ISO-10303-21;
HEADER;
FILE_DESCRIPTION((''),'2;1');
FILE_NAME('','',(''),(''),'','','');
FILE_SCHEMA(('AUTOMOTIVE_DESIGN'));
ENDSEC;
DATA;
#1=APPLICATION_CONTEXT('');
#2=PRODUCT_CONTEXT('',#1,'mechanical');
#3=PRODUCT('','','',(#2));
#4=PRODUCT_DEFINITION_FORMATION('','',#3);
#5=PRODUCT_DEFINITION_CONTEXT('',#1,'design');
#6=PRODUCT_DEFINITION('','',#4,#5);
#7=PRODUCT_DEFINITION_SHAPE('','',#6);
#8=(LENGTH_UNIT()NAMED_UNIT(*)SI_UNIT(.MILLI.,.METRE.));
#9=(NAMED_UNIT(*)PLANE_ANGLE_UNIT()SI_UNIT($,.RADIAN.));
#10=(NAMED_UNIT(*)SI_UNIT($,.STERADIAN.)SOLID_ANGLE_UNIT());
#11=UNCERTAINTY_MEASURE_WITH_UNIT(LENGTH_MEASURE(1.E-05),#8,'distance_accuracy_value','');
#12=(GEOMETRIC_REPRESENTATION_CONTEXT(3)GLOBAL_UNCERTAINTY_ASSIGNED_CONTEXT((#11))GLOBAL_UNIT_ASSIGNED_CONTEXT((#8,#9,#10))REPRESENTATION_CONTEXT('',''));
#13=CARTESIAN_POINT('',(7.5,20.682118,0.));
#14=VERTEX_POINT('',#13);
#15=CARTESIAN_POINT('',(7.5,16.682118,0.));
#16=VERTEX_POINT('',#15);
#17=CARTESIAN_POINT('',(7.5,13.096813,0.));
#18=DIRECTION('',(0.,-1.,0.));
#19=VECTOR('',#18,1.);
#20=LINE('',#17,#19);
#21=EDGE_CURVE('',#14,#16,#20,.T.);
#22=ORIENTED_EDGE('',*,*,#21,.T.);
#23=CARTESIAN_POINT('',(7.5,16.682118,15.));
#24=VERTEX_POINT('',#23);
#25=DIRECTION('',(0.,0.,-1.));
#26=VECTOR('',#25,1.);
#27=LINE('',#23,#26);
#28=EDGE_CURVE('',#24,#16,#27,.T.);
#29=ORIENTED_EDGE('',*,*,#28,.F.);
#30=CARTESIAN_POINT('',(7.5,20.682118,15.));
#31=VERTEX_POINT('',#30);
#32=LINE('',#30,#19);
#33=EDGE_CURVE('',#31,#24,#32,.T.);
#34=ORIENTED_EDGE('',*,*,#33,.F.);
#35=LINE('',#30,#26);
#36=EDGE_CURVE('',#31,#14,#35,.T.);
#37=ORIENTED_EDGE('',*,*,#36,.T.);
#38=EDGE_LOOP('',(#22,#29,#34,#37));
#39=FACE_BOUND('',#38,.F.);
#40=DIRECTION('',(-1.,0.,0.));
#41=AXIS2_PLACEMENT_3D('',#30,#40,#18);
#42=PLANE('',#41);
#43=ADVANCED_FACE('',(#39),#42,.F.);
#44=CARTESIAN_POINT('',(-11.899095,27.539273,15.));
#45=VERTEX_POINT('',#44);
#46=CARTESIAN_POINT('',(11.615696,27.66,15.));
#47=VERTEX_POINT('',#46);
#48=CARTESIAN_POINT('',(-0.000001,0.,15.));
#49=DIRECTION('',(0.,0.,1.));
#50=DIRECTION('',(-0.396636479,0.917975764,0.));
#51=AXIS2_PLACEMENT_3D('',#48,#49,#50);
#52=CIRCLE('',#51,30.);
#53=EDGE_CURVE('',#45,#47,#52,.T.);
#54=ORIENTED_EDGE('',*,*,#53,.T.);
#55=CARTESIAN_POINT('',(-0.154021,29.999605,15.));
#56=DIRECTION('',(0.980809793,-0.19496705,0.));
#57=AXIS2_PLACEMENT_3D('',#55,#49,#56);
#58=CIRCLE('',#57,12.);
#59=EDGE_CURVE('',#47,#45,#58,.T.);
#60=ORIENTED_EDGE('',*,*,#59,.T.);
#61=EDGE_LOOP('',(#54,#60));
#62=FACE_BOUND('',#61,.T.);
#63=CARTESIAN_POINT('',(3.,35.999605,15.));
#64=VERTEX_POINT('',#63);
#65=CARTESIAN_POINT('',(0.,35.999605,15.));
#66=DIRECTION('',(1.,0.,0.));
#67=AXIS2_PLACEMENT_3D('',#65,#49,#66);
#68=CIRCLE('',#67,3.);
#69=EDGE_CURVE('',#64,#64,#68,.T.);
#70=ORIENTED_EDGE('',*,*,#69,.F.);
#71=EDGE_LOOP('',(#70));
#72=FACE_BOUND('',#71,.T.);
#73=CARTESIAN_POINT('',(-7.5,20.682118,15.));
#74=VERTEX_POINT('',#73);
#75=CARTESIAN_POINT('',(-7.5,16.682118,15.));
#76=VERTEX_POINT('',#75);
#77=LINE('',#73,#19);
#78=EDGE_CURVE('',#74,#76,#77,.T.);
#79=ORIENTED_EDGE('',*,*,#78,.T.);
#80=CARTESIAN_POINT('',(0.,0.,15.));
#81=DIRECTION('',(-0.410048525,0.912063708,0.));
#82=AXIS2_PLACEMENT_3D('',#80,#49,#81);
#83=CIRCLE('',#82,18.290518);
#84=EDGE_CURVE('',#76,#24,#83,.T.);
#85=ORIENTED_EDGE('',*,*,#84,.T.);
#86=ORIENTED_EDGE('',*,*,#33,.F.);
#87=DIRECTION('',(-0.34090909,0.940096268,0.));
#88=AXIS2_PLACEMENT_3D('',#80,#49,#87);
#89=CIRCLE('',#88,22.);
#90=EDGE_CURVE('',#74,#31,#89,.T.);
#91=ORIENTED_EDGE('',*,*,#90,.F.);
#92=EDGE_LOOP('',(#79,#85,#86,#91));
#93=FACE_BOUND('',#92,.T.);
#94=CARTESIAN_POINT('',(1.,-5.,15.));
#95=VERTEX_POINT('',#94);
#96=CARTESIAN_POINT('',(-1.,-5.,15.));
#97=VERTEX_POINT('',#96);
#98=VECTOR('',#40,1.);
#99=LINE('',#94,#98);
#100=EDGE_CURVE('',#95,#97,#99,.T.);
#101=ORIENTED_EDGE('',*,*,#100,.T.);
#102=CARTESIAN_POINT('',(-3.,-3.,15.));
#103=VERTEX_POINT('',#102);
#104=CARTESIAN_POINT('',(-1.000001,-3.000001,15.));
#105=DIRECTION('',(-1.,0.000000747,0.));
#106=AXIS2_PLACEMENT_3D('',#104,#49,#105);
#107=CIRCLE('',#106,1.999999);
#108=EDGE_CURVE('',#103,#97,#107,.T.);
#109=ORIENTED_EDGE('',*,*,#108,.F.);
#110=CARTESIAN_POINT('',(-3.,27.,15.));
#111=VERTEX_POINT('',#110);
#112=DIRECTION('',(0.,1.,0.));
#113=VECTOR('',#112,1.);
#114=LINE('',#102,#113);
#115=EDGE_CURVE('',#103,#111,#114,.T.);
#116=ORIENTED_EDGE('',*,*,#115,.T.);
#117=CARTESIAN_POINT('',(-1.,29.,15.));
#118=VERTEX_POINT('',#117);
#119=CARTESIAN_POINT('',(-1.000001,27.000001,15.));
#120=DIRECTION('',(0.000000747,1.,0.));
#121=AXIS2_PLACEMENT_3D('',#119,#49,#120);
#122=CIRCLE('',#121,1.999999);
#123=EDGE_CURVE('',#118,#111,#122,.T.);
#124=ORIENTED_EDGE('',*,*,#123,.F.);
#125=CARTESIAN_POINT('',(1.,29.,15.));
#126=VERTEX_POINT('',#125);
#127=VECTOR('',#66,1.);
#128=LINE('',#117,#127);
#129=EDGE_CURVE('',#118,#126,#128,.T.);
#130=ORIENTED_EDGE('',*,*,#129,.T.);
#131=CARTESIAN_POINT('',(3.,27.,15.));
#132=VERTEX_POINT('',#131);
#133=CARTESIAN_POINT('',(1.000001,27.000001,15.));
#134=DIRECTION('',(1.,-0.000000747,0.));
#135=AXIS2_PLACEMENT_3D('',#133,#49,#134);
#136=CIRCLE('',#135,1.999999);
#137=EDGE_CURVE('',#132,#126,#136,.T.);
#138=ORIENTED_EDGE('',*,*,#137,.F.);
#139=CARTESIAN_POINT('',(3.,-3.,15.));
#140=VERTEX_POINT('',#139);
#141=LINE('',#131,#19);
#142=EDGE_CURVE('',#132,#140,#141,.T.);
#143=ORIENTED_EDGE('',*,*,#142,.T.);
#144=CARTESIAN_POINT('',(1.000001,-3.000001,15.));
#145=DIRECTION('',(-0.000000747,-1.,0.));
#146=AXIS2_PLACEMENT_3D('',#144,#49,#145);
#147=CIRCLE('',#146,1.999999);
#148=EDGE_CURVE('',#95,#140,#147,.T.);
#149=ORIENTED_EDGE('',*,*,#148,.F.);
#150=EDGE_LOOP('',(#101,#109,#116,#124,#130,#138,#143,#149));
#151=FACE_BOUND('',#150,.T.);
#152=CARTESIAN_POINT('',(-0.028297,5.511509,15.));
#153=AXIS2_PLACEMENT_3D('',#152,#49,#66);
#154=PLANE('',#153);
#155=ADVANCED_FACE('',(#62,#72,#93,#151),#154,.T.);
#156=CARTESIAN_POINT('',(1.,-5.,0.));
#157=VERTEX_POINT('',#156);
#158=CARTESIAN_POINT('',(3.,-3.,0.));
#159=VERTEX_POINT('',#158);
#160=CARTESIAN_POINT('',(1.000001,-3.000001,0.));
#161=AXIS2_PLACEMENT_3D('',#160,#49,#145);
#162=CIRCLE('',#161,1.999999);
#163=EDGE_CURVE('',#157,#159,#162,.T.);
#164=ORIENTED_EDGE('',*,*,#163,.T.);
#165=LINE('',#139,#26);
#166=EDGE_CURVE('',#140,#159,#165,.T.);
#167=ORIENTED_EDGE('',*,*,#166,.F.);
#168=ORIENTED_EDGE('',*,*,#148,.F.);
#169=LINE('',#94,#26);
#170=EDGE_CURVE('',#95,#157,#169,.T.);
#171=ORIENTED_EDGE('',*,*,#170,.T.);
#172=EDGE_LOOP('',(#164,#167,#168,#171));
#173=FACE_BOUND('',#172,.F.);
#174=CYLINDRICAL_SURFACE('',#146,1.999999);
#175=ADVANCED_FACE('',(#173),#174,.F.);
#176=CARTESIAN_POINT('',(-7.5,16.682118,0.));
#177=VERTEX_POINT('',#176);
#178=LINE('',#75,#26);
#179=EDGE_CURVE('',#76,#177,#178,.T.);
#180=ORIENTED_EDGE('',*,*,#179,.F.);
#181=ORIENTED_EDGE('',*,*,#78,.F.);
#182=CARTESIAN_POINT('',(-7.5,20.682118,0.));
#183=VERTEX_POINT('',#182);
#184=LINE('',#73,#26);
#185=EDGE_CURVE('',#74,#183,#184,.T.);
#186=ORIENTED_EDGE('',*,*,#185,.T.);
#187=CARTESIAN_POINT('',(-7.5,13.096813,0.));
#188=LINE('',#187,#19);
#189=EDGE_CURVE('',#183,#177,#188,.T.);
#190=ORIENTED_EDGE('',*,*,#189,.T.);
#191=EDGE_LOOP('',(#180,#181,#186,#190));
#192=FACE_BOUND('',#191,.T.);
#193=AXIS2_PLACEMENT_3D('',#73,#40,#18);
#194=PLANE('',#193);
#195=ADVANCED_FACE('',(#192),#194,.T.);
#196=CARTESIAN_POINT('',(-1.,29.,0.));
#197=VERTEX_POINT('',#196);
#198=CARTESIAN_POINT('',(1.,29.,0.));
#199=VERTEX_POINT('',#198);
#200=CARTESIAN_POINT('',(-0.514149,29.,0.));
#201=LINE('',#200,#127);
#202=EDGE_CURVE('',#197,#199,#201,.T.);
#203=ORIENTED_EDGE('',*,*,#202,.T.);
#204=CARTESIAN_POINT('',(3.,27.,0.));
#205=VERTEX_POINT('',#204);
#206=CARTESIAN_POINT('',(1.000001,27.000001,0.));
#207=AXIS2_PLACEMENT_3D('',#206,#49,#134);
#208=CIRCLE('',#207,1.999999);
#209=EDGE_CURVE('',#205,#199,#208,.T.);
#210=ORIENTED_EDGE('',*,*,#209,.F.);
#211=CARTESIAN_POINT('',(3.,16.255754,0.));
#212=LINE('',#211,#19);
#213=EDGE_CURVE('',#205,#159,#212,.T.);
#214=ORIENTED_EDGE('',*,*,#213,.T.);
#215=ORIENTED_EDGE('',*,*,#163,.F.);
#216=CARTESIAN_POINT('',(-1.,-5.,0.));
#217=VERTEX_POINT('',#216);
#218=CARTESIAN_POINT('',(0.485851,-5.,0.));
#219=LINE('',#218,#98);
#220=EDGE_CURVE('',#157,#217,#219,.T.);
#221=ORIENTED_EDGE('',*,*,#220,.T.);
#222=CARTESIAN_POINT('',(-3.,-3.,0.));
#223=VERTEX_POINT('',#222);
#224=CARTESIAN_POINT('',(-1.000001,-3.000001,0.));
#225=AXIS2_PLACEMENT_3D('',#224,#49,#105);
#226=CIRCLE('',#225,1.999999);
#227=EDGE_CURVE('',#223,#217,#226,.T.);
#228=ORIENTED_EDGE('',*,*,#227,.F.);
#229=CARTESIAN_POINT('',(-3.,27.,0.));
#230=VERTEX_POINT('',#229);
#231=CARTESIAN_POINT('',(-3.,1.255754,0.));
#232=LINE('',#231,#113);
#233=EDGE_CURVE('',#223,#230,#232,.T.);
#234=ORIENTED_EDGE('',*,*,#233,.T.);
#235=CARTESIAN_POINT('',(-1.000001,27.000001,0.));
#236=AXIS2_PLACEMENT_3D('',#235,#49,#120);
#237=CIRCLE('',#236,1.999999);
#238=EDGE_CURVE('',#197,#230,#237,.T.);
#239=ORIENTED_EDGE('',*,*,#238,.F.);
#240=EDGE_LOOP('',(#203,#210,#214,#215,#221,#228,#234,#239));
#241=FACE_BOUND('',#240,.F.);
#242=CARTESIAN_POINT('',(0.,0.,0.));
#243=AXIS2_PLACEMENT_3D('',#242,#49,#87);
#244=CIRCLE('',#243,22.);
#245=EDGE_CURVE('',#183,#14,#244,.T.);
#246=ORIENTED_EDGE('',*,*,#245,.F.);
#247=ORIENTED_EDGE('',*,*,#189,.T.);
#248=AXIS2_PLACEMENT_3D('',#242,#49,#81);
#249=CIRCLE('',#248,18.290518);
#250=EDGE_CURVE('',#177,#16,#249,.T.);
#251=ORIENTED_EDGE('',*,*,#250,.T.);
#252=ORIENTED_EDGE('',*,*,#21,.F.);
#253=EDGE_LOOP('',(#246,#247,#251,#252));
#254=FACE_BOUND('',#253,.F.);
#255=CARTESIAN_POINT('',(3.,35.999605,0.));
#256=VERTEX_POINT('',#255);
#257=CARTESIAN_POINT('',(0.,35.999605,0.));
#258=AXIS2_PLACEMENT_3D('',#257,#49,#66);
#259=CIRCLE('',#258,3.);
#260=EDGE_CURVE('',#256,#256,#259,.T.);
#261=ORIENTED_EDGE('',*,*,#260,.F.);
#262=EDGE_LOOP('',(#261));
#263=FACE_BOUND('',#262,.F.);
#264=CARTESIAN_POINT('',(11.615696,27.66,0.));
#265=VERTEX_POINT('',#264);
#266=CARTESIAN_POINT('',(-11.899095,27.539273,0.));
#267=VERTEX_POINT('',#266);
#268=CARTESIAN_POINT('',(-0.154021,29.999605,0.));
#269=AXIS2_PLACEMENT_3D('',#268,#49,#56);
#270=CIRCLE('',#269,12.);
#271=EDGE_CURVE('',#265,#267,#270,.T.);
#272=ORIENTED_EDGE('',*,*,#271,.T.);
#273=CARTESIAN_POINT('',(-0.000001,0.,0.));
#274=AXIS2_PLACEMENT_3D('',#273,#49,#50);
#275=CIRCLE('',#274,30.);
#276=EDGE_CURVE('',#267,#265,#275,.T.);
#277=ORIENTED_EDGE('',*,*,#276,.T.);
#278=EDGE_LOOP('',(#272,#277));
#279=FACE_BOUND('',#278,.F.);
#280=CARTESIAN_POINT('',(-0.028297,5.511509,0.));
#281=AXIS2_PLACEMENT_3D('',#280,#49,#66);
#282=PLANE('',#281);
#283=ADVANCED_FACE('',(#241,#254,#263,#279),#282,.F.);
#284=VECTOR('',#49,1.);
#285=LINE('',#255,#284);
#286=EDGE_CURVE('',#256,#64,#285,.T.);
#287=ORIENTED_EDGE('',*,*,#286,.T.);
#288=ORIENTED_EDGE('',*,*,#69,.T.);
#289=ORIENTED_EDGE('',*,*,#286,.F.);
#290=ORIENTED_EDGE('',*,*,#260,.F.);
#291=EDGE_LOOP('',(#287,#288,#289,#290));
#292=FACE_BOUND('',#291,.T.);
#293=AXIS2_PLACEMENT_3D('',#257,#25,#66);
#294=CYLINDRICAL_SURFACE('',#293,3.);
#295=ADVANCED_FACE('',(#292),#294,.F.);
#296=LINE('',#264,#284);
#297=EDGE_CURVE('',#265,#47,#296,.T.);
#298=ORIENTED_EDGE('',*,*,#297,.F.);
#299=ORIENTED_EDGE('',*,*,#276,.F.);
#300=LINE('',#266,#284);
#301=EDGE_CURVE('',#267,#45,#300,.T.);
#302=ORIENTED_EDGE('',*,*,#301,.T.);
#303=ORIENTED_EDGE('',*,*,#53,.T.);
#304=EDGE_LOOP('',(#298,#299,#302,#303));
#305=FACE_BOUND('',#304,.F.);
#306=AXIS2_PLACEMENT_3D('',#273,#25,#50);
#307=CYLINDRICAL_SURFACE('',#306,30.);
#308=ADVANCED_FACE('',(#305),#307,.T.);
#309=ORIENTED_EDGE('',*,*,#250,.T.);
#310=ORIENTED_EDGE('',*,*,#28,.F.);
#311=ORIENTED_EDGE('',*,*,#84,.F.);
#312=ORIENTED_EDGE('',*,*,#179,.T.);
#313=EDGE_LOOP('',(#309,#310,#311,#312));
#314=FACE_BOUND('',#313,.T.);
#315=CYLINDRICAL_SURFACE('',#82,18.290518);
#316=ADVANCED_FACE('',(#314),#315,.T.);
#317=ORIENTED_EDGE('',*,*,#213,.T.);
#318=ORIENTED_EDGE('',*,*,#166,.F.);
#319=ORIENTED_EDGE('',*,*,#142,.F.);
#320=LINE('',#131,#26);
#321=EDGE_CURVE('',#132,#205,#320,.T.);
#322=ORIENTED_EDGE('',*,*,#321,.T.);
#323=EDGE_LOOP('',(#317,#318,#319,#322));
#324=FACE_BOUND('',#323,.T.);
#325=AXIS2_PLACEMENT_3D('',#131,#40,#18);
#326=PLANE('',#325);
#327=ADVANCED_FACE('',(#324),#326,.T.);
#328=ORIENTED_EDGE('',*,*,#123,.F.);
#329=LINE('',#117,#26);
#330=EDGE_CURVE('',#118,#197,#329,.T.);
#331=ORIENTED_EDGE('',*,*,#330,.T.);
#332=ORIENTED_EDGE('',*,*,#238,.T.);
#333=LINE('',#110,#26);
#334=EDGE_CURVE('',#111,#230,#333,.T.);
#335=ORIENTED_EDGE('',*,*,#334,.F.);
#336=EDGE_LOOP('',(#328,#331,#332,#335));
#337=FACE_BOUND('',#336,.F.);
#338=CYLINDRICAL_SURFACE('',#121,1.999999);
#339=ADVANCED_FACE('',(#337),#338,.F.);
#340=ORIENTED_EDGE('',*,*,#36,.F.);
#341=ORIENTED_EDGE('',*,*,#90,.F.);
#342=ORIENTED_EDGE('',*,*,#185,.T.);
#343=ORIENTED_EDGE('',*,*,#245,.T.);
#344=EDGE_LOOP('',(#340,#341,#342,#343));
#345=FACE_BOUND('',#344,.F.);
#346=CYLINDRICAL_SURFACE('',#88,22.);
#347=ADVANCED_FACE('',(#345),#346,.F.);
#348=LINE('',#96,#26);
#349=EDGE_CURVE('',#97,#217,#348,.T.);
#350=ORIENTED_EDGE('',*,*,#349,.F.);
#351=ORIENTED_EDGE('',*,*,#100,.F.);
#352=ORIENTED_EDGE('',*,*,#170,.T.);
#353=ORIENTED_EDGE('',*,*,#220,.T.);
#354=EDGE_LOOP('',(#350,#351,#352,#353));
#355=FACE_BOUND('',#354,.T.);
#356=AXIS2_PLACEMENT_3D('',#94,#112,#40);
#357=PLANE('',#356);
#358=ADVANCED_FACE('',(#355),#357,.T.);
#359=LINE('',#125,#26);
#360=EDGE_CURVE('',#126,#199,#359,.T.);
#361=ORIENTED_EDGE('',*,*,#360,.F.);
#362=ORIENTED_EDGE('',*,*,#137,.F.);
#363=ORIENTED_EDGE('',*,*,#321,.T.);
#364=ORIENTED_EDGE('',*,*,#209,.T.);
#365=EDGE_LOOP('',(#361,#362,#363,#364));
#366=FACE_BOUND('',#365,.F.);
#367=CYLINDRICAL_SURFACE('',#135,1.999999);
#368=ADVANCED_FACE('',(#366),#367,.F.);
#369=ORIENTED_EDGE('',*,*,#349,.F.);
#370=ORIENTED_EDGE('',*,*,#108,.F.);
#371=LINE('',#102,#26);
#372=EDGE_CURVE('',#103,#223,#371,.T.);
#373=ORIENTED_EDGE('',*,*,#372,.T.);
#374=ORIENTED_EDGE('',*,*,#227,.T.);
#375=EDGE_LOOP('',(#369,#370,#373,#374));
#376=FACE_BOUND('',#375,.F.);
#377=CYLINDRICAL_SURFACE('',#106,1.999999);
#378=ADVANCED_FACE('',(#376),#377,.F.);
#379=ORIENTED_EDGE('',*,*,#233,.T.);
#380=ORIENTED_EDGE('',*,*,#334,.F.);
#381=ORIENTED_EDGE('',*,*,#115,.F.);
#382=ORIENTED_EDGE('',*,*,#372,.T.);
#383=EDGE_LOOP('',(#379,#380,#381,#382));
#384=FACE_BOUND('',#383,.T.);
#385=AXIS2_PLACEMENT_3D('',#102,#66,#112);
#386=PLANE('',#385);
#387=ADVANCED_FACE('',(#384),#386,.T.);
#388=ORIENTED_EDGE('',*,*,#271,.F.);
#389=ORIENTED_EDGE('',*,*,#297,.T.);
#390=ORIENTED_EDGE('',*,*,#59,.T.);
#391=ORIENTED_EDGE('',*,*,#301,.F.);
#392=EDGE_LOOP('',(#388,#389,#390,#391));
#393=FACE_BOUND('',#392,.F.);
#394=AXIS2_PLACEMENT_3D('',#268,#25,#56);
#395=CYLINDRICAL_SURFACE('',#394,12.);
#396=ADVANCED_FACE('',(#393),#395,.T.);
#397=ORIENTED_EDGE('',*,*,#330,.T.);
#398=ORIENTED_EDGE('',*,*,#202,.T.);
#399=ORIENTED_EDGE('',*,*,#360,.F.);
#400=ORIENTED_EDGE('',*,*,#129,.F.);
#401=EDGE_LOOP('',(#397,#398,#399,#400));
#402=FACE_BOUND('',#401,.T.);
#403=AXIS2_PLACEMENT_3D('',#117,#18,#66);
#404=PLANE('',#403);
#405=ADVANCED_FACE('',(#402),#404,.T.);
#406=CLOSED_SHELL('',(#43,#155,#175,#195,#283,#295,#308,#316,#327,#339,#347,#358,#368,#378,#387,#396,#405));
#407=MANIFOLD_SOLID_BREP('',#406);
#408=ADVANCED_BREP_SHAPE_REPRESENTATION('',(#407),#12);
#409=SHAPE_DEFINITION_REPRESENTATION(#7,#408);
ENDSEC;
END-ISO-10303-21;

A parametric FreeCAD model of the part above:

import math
import FreeCAD as App
import Part
import Sketcher
from FreeCAD import Vector

doc = App.newDocument("Part")
body = doc.addObject("PartDesign::Body", "Body")

sketch1 = body.newObject("Sketcher::SketchObject", "Sketch")
sketch1.AttachmentSupport = (doc.getObject("XY_Plane"), [""])
sketch1.MapMode = "FlatFace"
sketch1.addGeometry(Part.ArcOfCircle(Part.Circle(Vector(0, 0, 0), Vector(0, 0, 1), 30), math.radians(113), math.radians(427)), False)
sketch1.addGeometry(Part.ArcOfCircle(Part.Circle(Vector(-0.2, 30, 0), Vector(0, 0, 1), 12), math.radians(-11), math.radians(192)), False)
sketch1.addGeometry(Part.Circle(Vector(0, 36, 0), Vector(0, 0, 1), 3), False)
sketch1.addConstraint(Sketcher.Constraint("Coincident", 0, 1, 1, 2))
sketch1.addConstraint(Sketcher.Constraint("Coincident", 1, 1, 0, 2))
sketch1.addConstraint(Sketcher.Constraint("Coincident", 0, 3, -1, 1))
sketch1.addConstraint(Sketcher.Constraint("PointOnObject", 2, 3, -2))
sketch1.addConstraint(Sketcher.Constraint("Diameter", 2, 6.0))
sketch1.addConstraint(Sketcher.Constraint("Radius", 0, 30.0))
sketch1.addConstraint(Sketcher.Constraint("Radius", 1, 12.0))
sketch1.addConstraint(Sketcher.Constraint("DistanceY", 1, 3, 2, 3, 6.0))
sketch1.addConstraint(Sketcher.Constraint("DistanceY", -1, 1, 1, 1, 27.66))
sketch1.addConstraint(Sketcher.Constraint("DistanceX", 1, 3, -1, 1, 0.154021))
pad1 = body.newObject("PartDesign::Pad", "Pad")
pad1.Profile = sketch1
pad1.Length = 15

sketch2 = body.newObject("Sketcher::SketchObject", "Sketch001")
sketch2.AttachmentSupport = (doc.getObject("XY_Plane"), [""])
sketch2.MapMode = "FlatFace"
sketch2.AttachmentOffset = App.Placement(Vector(0, 0, 15), App.Rotation())
sketch2.addGeometry(Part.ArcOfCircle(Part.Circle(Vector(0, 0, 0), Vector(0, 0, 1), 22), math.radians(110), math.radians(430)), False)
sketch2.addGeometry(Part.LineSegment(Vector(7.5, 20.7, 0), Vector(7.5, 16.7, 0)), False)
sketch2.addGeometry(Part.ArcOfCircle(Part.Circle(Vector(0, 0, 0), Vector(0, 0, 1), 18.3), math.radians(114), math.radians(426)), False)
sketch2.addGeometry(Part.LineSegment(Vector(-7.5, 16.7, 0), Vector(-7.5, 20.7, 0)), False)
sketch2.addGeometry(Part.LineSegment(Vector(1, 29, 0), Vector(-1, 29, 0)), False)
sketch2.addGeometry(Part.ArcOfCircle(Part.Circle(Vector(-1, 27, 0), Vector(0, 0, 1), 2), math.radians(90), math.radians(180)), False)
sketch2.addGeometry(Part.LineSegment(Vector(-3, 27, 0), Vector(-3, -3, 0)), False)
sketch2.addGeometry(Part.ArcOfCircle(Part.Circle(Vector(-1, -3, 0), Vector(0, 0, 1), 2), math.radians(180), math.radians(270)), False)
sketch2.addGeometry(Part.LineSegment(Vector(-1, -5, 0), Vector(1, -5, 0)), False)
sketch2.addGeometry(Part.ArcOfCircle(Part.Circle(Vector(1, -3, 0), Vector(0, 0, 1), 2), math.radians(-90), math.radians(0)), False)
sketch2.addGeometry(Part.LineSegment(Vector(3, -3, 0), Vector(3, 27, 0)), False)
sketch2.addGeometry(Part.ArcOfCircle(Part.Circle(Vector(1, 27, 0), Vector(0, 0, 1), 2), math.radians(0), math.radians(90)), False)
sketch2.addConstraint(Sketcher.Constraint("Coincident", 0, 2, 1, 1))
sketch2.addConstraint(Sketcher.Constraint("Coincident", 1, 2, 2, 2))
sketch2.addConstraint(Sketcher.Constraint("Coincident", 2, 1, 3, 1))
sketch2.addConstraint(Sketcher.Constraint("Coincident", 3, 2, 0, 1))
sketch2.addConstraint(Sketcher.Constraint("Tangent", 4, 2, 5, 1))
sketch2.addConstraint(Sketcher.Constraint("Tangent", 5, 2, 6, 1))
sketch2.addConstraint(Sketcher.Constraint("Tangent", 6, 2, 7, 1))
sketch2.addConstraint(Sketcher.Constraint("Tangent", 7, 2, 8, 1))
sketch2.addConstraint(Sketcher.Constraint("Tangent", 8, 2, 9, 1))
sketch2.addConstraint(Sketcher.Constraint("Tangent", 9, 2, 10, 1))
sketch2.addConstraint(Sketcher.Constraint("Tangent", 10, 2, 11, 1))
sketch2.addConstraint(Sketcher.Constraint("Tangent", 11, 2, 4, 1))
sketch2.addConstraint(Sketcher.Constraint("Vertical", 1))
sketch2.addConstraint(Sketcher.Constraint("Vertical", 3))
sketch2.addConstraint(Sketcher.Constraint("Horizontal", 4))
sketch2.addConstraint(Sketcher.Constraint("Vertical", 6))
sketch2.addConstraint(Sketcher.Constraint("Horizontal", 8))
sketch2.addConstraint(Sketcher.Constraint("Vertical", 10))
sketch2.addConstraint(Sketcher.Constraint("Coincident", 0, 3, -1, 1))
sketch2.addConstraint(Sketcher.Constraint("Coincident", 2, 3, -1, 1))
sketch2.addConstraint(Sketcher.Constraint("Equal", 5, 7))
sketch2.addConstraint(Sketcher.Constraint("Equal", 7, 9))
sketch2.addConstraint(Sketcher.Constraint("Equal", 9, 11))
sketch2.addConstraint(Sketcher.Constraint("Horizontal", 1, 2, 2, 1))
sketch2.addConstraint(Sketcher.Constraint("Radius", 0, 22.0))
sketch2.addConstraint(Sketcher.Constraint("Radius", 5, 1.999999))
sketch2.addConstraint(Sketcher.Constraint("DistanceX", 4, 2, 4, 1, 2.0))
sketch2.addConstraint(Sketcher.Constraint("DistanceY", 1, 2, 1, 1, 4.0))
sketch2.addConstraint(Sketcher.Constraint("DistanceY", 6, 2, 6, 1, 30.0))
sketch2.addConstraint(Sketcher.Constraint("DistanceX", 5, 3, -1, 1, 1.000001))
sketch2.addConstraint(Sketcher.Constraint("DistanceY", -1, 1, 5, 3, 27.000001))
sketch2.addConstraint(Sketcher.Constraint("DistanceX", 2, 1, 1, 2, 15.0))
pocket1 = body.newObject("PartDesign::Pocket", "Pocket")
pocket1.Profile = sketch2
pocket1.Type = "ThroughAll"

doc.recompute()
